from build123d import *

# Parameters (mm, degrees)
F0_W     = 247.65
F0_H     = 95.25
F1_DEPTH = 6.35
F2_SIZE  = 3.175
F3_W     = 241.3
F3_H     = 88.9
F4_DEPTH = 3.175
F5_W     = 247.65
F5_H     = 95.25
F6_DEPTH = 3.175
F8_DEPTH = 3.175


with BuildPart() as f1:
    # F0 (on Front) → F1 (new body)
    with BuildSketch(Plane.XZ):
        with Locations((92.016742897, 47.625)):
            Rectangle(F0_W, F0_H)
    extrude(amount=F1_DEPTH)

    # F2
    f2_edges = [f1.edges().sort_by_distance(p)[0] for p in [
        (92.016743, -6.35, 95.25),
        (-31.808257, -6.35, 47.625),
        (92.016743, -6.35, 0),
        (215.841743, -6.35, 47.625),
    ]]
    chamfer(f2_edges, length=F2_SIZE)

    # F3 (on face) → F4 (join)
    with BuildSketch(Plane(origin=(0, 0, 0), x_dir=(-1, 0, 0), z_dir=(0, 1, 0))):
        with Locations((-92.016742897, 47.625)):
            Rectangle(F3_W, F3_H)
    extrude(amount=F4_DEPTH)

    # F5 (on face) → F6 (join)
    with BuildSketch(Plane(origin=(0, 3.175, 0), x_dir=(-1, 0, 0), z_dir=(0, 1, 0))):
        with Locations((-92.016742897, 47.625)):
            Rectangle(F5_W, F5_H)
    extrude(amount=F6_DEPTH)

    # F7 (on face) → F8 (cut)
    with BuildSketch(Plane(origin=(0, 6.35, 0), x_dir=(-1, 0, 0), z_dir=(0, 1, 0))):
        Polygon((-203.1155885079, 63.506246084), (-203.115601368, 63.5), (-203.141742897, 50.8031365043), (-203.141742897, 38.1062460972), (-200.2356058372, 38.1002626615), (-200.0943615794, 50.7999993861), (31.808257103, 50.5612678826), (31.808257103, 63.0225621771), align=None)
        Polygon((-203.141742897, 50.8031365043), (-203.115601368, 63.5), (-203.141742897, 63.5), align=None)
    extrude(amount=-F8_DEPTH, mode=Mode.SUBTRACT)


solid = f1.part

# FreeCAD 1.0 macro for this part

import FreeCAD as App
import Part
import Sketcher

V = App.Vector
Q = App.Units.Quantity


def edges_at(feature, points):
    """Names of the edges that pass closest to the given points."""
    edges = feature.Shape.Edges
    near = lambda p: min(range(len(edges)), key=lambda i: edges[i].distToShape(Part.Vertex(*p))[0])
    return sorted({f"Edge{near(p) + 1}" for p in points})

doc = App.newDocument("Part")
params = doc.addObject("Spreadsheet::Sheet", "Params")
for row, (alias, value) in enumerate([
    ("sketch1_width", "9.75 in"),
    ("sketch1_height", "3.75 in"),
    ("pad1_length", "0.25 in"),
    ("chamfer_size", "0.125 in"),
    ("sketch2_width", "9.5 in"),
    ("sketch2_height", "3.5 in"),
    ("pad2_length", "0.125 in"),
    ("sketch3_width", "9.75 in"),
    ("sketch3_height", "3.75 in"),
    ("pad3_length", "0.125 in"),
    ("pocket1_length", "0.125 in"),
], start=1):
    params.set(f"A{row}", alias)
    params.set(f"B{row}", "=" + value)
    params.setAlias(f"B{row}", alias)

body = doc.addObject("PartDesign::Body", "Body")

sketch1 = body.newObject("Sketcher::SketchObject", "Sketch")
sketch1.AttachmentSupport = (doc.getObject("XZ_Plane"), [""])
sketch1.MapMode = "FlatFace"
sketch1.addGeometry([
    Part.LineSegment(V(-32, 95, 0), V(-32, 0, 0)),
    Part.LineSegment(V(-32, 0, 0), V(216, 0, 0)),
    Part.LineSegment(V(216, 0, 0), V(216, 95, 0)),
    Part.LineSegment(V(216, 95, 0), V(-32, 95, 0)),
], False)
sketch1.addConstraint([
    Sketcher.Constraint("Coincident", 0, 2, 1, 1),
    Sketcher.Constraint("Coincident", 1, 2, 2, 1),
    Sketcher.Constraint("Coincident", 2, 2, 3, 1),
    Sketcher.Constraint("Coincident", 3, 2, 0, 1),
    Sketcher.Constraint("Vertical", 0),
    Sketcher.Constraint("Horizontal", 1),
    Sketcher.Constraint("Vertical", 2),
    Sketcher.Constraint("Horizontal", 3),
    Sketcher.Constraint("PointOnObject", 0, 2, -1),
    Sketcher.Constraint("DistanceX", 1, 1, 1, 2, Q("9.75 in")),
    Sketcher.Constraint("DistanceY", 0, 2, 0, 1, Q("3.75 in")),
    Sketcher.Constraint("DistanceX", 0, 2, -1, 1, Q("31.808257 mm")),
])
sketch1.setExpression("Constraints[9]", "Params.sketch1_width")
sketch1.setExpression("Constraints[10]", "Params.sketch1_height")
pad1 = body.newObject("PartDesign::Pad", "Pad")
pad1.Profile = sketch1
pad1.setExpression("Length", "Params.pad1_length")
doc.recompute()

chamfer = body.newObject("PartDesign::Chamfer", "Chamfer")
chamfer.Base = (pad1, edges_at(pad1, [
    (92.017, -6.35, 95.25),
    (-31.808, -6.35, 47.625),
    (92.017, -6.35, 0),
    (215.842, -6.35, 47.625),
]))
chamfer.setExpression("Size", "Params.chamfer_size")

sketch2 = body.newObject("Sketcher::SketchObject", "Sketch001")
sketch2.AttachmentSupport = (doc.getObject("XZ_Plane"), [""])
sketch2.MapMode = "FlatFace"
sketch2.addGeometry([
    Part.LineSegment(V(213, 92, 0), V(213, 3, 0)),
    Part.LineSegment(V(213, 3, 0), V(-29, 3, 0)),
    Part.LineSegment(V(-29, 3, 0), V(-29, 92, 0)),
    Part.LineSegment(V(-29, 92, 0), V(213, 92, 0)),
], False)
sketch2.addConstraint([
    Sketcher.Constraint("Coincident", 0, 2, 1, 1),
    Sketcher.Constraint("Coincident", 1, 2, 2, 1),
    Sketcher.Constraint("Coincident", 2, 2, 3, 1),
    Sketcher.Constraint("Coincident", 3, 2, 0, 1),
    Sketcher.Constraint("Vertical", 0),
    Sketcher.Constraint("Horizontal", 1),
    Sketcher.Constraint("Vertical", 2),
    Sketcher.Constraint("Horizontal", 3),
    Sketcher.Constraint("DistanceX", 1, 2, 1, 1, Q("9.5 in")),
    Sketcher.Constraint("DistanceY", 0, 2, 0, 1, Q("3.5 in")),
    Sketcher.Constraint("DistanceY", -1, 1, 0, 2, Q("0.125 in")),
    Sketcher.Constraint("DistanceX", -1, 1, 0, 2, Q("212.666743 mm")),
])
sketch2.setExpression("Constraints[8]", "Params.sketch2_width")
sketch2.setExpression("Constraints[9]", "Params.sketch2_height")
pad2 = body.newObject("PartDesign::Pad", "Pad001")
pad2.Profile = sketch2
pad2.setExpression("Length", "Params.pad2_length")
pad2.Reversed = True

sketch3 = body.newObject("Sketcher::SketchObject", "Sketch002")
sketch3.AttachmentSupport = (doc.getObject("XZ_Plane"), [""])
sketch3.MapMode = "FlatFace"
sketch3.AttachmentOffset = App.Placement(V(0, 0, -0.125 * 25.4), App.Rotation())
sketch3.addGeometry([
    Part.LineSegment(V(216, 95, 0), V(216, 0, 0)),
    Part.LineSegment(V(216, 0, 0), V(-32, 0, 0)),
    Part.LineSegment(V(-32, 0, 0), V(-32, 95, 0)),
    Part.LineSegment(V(-32, 95, 0), V(216, 95, 0)),
], False)
sketch3.addConstraint([
    Sketcher.Constraint("Coincident", 0, 2, 1, 1),
    Sketcher.Constraint("Coincident", 1, 2, 2, 1),
    Sketcher.Constraint("Coincident", 2, 2, 3, 1),
    Sketcher.Constraint("Coincident", 3, 2, 0, 1),
    Sketcher.Constraint("Vertical", 0),
    Sketcher.Constraint("Horizontal", 1),
    Sketcher.Constraint("Vertical", 2),
    Sketcher.Constraint("Horizontal", 3),
    Sketcher.Constraint("PointOnObject", 0, 2, -1),
    Sketcher.Constraint("DistanceX", 1, 2, 1, 1, Q("9.75 in")),
    Sketcher.Constraint("DistanceY", 0, 2, 0, 1, Q("3.75 in")),
    Sketcher.Constraint("DistanceX", -1, 1, 0, 2, Q("215.841743 mm")),
])
sketch3.setExpression("Constraints[9]", "Params.sketch3_width")
sketch3.setExpression("Constraints[10]", "Params.sketch3_height")
pad3 = body.newObject("PartDesign::Pad", "Pad002")
pad3.Profile = sketch3
pad3.setExpression("Length", "Params.pad3_length")
pad3.Reversed = True

sketch4 = body.newObject("Sketcher::SketchObject", "Sketch003")
sketch4.AttachmentSupport = (doc.getObject("XZ_Plane"), [""])
sketch4.MapMode = "FlatFace"
sketch4.AttachmentOffset = App.Placement(V(0, 0, -0.25 * 25.4), App.Rotation())
sketch4.addGeometry([
    Part.LineSegment(V(-31.808, 63.023, 0), V(203.116, 63.506, 0)),
    Part.LineSegment(V(203.116, 63.506, 0), V(203.116, 63.5, 0)),
    Part.LineSegment(V(203.116, 63.5, 0), V(203.142, 63.5, 0)),
    Part.LineSegment(V(203.142, 63.5, 0), V(203.142, 38.106, 0)),
    Part.LineSegment(V(203.142, 38.106, 0), V(200.236, 38.1, 0)),
    Part.LineSegment(V(200.236, 38.1, 0), V(200.094, 50.8, 0)),
    Part.LineSegment(V(200.094, 50.8, 0), V(-31.808, 50.561, 0)),
    Part.LineSegment(V(-31.808, 50.561, 0), V(-31.808, 63.023, 0)),
], False)
sketch4.addConstraint([
    Sketcher.Constraint("Coincident", 0, 2, 1, 1),
    Sketcher.Constraint("Coincident", 1, 2, 2, 1),
    Sketcher.Constraint("Coincident", 2, 2, 3, 1),
    Sketcher.Constraint("Coincident", 3, 2, 4, 1),
    Sketcher.Constraint("Coincident", 4, 2, 5, 1),
    Sketcher.Constraint("Coincident", 5, 2, 6, 1),
    Sketcher.Constraint("Coincident", 6, 2, 7, 1),
    Sketcher.Constraint("Coincident", 7, 2, 0, 1),
    Sketcher.Constraint("Horizontal", 2),
    Sketcher.Constraint("Vertical", 3),
    Sketcher.Constraint("Vertical", 7),
    Sketcher.Constraint("Perpendicular", 0, 1),
    Sketcher.Constraint("Parallel", 0, 4),
    Sketcher.Constraint("DistanceY", -1, 1, 5, 2, Q("2 in")),
    Sketcher.Constraint("DistanceY", 3, 2, 0, 2, Q("1 in")),
    Sketcher.Constraint("DistanceY", -1, 1, 1, 2, Q("2.5 in")),
    Sketcher.Constraint("DistanceX", 6, 2, 3, 2, Q("9.25 in")),
    Sketcher.Constraint("DistanceX", 2, 1, 2, 2, Q("0.026142 mm")),
    Sketcher.Constraint("DistanceX", -1, 1, 1, 2, Q("203.115601 mm")),
    Sketcher.Constraint("DistanceY", 4, 2, 7, 2, Q("24.9223 mm")),
    Sketcher.Constraint("Distance", 6, Q("231.902742 mm")),
    Sketcher.Constraint("DistanceY", 3, 2, 3, 1, Q("25.393754 mm")),
    Sketcher.Constraint("DistanceY", 7, 1, 7, 2, Q("12.461294 mm")),
    Sketcher.Constraint("Distance", 4, Q("2.906143 mm")),
])
pocket1 = body.newObject("PartDesign::Pocket", "Pocket")
pocket1.Profile = sketch4
pocket1.setExpression("Length", "Params.pocket1_length")
pocket1.Reversed = True

doc.recompute()
